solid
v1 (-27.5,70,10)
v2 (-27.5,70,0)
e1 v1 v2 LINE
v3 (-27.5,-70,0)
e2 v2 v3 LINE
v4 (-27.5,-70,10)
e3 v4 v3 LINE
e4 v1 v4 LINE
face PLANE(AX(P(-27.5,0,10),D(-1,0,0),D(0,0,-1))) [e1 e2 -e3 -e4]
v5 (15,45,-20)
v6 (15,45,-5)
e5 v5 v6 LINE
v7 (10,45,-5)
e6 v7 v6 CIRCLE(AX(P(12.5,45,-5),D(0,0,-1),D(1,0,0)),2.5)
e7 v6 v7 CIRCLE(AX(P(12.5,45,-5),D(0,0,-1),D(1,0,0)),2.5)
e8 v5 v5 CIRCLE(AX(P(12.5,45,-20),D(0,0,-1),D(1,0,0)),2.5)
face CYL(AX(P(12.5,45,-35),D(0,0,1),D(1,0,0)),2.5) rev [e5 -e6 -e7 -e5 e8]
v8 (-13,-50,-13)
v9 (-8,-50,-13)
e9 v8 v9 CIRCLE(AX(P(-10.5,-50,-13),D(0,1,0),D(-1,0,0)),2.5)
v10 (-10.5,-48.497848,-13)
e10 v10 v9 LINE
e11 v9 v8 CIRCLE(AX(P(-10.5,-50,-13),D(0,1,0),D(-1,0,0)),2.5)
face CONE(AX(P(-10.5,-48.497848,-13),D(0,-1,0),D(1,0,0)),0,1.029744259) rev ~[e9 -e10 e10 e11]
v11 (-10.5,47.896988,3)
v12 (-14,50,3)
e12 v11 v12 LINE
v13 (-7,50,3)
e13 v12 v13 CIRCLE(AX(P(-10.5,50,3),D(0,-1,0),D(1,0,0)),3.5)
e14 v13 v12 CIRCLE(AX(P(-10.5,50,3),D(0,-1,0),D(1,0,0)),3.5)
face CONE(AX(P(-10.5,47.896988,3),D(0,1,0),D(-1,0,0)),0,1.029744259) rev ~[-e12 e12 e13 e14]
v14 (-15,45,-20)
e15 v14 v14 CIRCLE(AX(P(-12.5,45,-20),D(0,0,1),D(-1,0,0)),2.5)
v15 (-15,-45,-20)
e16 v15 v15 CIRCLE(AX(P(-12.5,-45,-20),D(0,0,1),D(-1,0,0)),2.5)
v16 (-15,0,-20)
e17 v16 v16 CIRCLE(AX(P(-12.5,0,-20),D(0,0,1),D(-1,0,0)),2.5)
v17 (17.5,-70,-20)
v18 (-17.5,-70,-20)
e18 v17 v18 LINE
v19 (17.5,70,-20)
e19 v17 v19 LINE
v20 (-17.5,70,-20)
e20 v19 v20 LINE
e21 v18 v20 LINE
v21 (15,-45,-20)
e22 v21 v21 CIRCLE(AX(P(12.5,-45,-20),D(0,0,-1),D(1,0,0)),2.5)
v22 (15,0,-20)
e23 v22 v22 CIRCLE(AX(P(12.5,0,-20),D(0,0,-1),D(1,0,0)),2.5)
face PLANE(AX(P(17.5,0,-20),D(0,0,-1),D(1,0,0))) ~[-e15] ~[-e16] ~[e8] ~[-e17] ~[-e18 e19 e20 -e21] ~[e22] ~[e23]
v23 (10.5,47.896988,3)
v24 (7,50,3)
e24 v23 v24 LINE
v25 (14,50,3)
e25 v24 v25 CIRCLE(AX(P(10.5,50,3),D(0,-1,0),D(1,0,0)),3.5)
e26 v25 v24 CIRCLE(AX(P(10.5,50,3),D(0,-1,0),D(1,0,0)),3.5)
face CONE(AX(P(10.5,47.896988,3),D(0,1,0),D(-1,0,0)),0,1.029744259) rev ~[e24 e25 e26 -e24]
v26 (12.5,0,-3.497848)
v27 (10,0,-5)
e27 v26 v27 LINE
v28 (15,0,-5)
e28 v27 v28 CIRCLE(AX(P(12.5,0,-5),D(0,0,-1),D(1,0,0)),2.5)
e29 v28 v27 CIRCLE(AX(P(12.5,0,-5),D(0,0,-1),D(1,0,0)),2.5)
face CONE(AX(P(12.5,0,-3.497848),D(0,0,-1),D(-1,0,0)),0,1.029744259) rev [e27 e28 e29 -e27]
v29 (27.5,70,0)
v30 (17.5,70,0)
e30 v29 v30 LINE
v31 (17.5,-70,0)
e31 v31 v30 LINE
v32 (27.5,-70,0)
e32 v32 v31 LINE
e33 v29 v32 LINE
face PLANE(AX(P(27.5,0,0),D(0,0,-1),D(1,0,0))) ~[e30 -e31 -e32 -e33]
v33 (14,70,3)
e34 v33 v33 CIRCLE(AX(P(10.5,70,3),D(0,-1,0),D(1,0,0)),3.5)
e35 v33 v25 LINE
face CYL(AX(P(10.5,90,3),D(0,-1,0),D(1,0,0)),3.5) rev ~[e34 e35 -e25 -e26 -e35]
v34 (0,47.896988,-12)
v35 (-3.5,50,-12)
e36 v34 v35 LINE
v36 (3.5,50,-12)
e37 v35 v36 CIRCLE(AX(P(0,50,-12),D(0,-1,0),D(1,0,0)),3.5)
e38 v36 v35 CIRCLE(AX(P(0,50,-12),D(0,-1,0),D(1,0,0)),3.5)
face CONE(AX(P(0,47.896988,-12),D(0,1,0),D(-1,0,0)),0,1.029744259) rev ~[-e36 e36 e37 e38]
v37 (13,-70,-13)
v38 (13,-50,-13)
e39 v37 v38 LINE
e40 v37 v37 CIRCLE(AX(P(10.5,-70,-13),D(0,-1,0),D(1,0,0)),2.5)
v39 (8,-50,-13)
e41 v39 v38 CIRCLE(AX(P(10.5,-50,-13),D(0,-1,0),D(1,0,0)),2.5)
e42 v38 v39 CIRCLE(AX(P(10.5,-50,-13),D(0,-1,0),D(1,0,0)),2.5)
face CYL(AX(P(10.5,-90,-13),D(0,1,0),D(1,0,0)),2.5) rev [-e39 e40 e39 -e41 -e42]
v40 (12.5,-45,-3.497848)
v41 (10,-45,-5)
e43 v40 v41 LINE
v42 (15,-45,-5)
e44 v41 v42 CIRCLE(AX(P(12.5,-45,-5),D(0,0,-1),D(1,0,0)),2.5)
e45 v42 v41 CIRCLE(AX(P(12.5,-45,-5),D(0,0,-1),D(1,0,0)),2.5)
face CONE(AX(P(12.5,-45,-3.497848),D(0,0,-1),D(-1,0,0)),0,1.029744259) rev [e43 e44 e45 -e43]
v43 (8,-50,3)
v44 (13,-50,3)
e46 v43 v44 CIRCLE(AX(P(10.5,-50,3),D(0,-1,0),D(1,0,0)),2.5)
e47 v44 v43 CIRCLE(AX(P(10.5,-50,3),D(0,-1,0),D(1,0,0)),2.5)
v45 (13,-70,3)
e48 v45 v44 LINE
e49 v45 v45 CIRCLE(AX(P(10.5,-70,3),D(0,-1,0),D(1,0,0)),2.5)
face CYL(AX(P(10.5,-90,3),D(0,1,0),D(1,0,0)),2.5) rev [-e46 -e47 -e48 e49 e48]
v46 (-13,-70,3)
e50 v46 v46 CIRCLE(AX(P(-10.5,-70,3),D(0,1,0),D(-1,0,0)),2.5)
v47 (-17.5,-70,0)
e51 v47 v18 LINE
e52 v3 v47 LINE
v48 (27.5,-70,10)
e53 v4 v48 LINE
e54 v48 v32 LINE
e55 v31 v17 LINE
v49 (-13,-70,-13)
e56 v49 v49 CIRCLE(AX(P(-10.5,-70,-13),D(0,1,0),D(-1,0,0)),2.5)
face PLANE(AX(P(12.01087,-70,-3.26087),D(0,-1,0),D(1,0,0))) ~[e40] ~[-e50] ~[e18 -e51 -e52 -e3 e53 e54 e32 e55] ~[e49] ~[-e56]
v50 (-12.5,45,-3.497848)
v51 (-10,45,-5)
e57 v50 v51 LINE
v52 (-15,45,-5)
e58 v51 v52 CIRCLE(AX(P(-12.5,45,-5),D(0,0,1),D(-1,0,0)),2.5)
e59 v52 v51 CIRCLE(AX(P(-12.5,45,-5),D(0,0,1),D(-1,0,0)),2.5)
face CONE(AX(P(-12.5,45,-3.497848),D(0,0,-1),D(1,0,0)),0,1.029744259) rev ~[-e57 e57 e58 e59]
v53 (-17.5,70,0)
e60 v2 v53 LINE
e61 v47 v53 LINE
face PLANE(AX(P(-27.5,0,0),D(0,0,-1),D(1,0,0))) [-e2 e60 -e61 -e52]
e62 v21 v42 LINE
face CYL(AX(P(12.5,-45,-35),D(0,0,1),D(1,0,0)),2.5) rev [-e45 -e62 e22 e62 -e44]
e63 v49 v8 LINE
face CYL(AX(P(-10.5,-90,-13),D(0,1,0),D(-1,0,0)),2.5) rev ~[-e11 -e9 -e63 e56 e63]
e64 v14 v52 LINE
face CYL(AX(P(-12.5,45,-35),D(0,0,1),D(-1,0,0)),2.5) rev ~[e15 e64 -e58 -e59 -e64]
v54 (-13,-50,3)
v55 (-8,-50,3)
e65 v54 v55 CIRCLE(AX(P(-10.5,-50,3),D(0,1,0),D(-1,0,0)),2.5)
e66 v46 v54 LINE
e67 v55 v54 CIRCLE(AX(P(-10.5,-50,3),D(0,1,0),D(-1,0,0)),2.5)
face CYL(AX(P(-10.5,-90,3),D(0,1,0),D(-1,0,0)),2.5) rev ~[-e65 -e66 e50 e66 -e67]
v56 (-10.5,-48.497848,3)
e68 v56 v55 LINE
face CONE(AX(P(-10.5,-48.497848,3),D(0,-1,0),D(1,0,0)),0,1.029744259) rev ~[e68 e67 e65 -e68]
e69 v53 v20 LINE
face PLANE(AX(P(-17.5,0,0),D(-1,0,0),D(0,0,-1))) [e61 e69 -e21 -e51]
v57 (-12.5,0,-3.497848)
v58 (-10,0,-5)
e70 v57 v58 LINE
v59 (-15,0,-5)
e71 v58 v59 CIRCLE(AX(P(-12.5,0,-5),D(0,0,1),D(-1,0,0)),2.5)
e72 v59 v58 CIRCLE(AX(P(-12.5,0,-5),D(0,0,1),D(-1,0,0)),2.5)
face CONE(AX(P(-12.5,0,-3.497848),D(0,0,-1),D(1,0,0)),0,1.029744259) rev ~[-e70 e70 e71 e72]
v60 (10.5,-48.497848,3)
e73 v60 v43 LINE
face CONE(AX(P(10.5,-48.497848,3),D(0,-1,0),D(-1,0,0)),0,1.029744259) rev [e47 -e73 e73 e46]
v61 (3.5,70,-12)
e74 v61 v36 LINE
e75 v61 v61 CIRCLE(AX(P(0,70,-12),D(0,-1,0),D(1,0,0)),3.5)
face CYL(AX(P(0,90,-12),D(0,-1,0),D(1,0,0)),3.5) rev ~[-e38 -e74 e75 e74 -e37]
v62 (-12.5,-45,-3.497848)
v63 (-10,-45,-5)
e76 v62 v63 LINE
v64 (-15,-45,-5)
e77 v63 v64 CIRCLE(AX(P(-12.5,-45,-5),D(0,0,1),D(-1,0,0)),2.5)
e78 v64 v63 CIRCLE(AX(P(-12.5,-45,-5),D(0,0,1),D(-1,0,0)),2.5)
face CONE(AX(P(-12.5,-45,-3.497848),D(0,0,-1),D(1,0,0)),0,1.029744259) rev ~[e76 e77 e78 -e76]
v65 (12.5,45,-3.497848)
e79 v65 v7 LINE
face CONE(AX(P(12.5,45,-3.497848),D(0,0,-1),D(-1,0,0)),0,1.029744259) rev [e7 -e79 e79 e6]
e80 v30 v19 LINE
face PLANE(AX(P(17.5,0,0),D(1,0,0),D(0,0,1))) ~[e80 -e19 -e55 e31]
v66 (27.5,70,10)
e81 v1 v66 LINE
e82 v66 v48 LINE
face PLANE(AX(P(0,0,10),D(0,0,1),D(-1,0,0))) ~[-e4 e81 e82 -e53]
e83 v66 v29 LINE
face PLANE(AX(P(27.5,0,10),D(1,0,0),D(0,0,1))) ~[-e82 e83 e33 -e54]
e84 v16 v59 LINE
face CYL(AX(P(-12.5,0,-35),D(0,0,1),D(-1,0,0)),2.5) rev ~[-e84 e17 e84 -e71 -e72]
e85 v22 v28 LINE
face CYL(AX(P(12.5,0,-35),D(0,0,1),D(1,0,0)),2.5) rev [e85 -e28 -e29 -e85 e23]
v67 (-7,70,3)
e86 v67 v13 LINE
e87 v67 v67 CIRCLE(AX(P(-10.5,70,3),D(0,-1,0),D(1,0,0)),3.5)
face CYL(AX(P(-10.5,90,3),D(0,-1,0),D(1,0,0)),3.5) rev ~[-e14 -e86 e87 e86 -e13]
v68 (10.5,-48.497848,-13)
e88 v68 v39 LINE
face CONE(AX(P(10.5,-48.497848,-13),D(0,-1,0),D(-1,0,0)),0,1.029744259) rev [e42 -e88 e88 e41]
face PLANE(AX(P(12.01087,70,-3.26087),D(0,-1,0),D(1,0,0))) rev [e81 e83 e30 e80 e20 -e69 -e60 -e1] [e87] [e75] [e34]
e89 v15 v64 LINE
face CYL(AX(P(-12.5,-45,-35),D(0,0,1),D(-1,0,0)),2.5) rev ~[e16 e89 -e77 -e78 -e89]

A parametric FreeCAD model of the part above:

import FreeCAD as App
import Part
import Sketcher

V = App.Vector


def add_polygon(sketch, points):
    """Adds a closed chain of lines whose ends are joined by coincident constraints."""
    first, n = sketch.GeometryCount, len(points)
    for a, b in zip(points, points[1:] + points[:1]):
        sketch.addGeometry(Part.LineSegment(App.Vector(*a, 0), App.Vector(*b, 0)), False)
    for i in range(n):
        sketch.addConstraint(Sketcher.Constraint("Coincident", first + i, 2, first + (i + 1) % n, 1))

doc = App.newDocument("Part")
body = doc.addObject("PartDesign::Body", "Body")

# Sketch on XZ plane
sketch1 = doc.addObject("Sketcher::SketchObject", "Sketch")
body.addObject(sketch1)
sketch1.AttachmentSupport = (doc.XZ_Plane, [""])
sketch1.MapMode = "FlatFace"
add_polygon(sketch1, [(0, -20), (0, 10), (-28, 10), (-28, 0), (-18, 0), (-18, -20)])  # lines 0-5
sketch1.addConstraint([
    Sketcher.Constraint("Vertical", 0),
    Sketcher.Constraint("Horizontal", 1),
    Sketcher.Constraint("Vertical", 2),
    Sketcher.Constraint("Horizontal", 3),
    Sketcher.Constraint("Vertical", 4),
    Sketcher.Constraint("Horizontal", 5),
    Sketcher.Constraint("PointOnObject", 0, 2, -2),
    Sketcher.Constraint("PointOnObject", 2, 2, -1),
    Sketcher.Constraint("Equal", 3, 2),
    Sketcher.Constraint("DistanceX", 3, 1, 3, 2, 10.0),
    Sketcher.Constraint("DistanceY", 0, 1, 0, 2, 30.0),
    Sketcher.Constraint("DistanceX", 1, 2, 1, 1, 27.5),
])
pad1 = doc.addObject("PartDesign::Pad", "Pad")
body.addObject(pad1)
pad1.Profile = sketch1
pad1.Length = 140
pad1.Midplane = True

# Sketch on XZ plane
sketch2 = doc.addObject("Sketcher::SketchObject", "Sketch001")
body.addObject(sketch2)
sketch2.AttachmentSupport = (doc.XZ_Plane, [""])
sketch2.MapMode = "FlatFace"
sketch2.AttachmentOffset = App.Placement(V(0, 0, 70), App.Rotation())
sketch2.addGeometry([
    Part.Circle(V(-10.5, 3, 0), V(0, 0, 1), 2.5),
    Part.Circle(V(-10.5, -13, 0), V(0, 0, 1), 2.5),
], False)
sketch2.addConstraint([
    Sketcher.Constraint("Equal", 0, 1),
    Sketcher.Constraint("Vertical", 0, 3, 1, 3),
    Sketcher.Constraint("Diameter", 0, 5.0),
    Sketcher.Constraint("DistanceY", -1, 1, 0, 3, 3.0),
    Sketcher.Constraint("DistanceY", 1, 3, -1, 1, 13.0),
    Sketcher.Constraint("DistanceX", 0, 3, -1, 1, 10.5),
])
doc.recompute()
hole = doc.addObject("PartDesign::Hole", "Hole")
body.addObject(hole)
hole.Profile = sketch2
hole.ThreadType = "None"
hole.Diameter = 5
hole.DepthType = "Dimension"
hole.Depth = 20
hole.DrillPoint = "Angled"
hole.DrillPointAngle = 118

# Sketch on XY plane
sketch3 = doc.addObject("Sketcher::SketchObject", "Sketch002")
body.addObject(sketch3)
sketch3.AttachmentSupport = (doc.XY_Plane, [""])
sketch3.MapMode = "FlatFace"
sketch3.AttachmentOffset = App.Placement(V(0, 0, -20), App.Rotation())
sketch3.addGeometry([
    Part.Circle(V(-12.5, -45, 0), V(0, 0, 1), 2.5),
    Part.Circle(V(-12.5, 0, 0), V(0, 0, 1), 2.5),
    Part.Circle(V(-12.5, 45, 0), V(0, 0, 1), 2.5),
], False)
sketch3.addConstraint([
    Sketcher.Constraint("Equal", 0, 1),
    Sketcher.Constraint("Equal", 1, 2),
    Sketcher.Constraint("Symmetric", 0, 3, 2, 3, -1),
    Sketcher.Constraint("PointOnObject", 1, 3, -1),
    Sketcher.Constraint("Vertical", 0, 3, 1, 3),
    Sketcher.Constraint("Diameter", 0, 5.0),
    Sketcher.Constraint("DistanceY", 0, 3, -1, 1, 45.0),
    Sketcher.Constraint("DistanceX", 0, 3, -1, 1, 12.5),
])
doc.recompute()
hole2 = doc.addObject("PartDesign::Hole", "Hole001")
body.addObject(hole2)
hole2.Profile = sketch3
hole2.ThreadType = "None"
hole2.Diameter = 5
hole2.DepthType = "Dimension"
hole2.Depth = 15
hole2.DrillPoint = "Angled"
hole2.DrillPointAngle = 118
hole2.Reversed = True
body2 = doc.addObject("PartDesign::Body", "Body001")
doc.recompute()

body2.BaseFeature = body
doc.recompute()

mirroring = doc.addObject("Part::Mirroring", "Mirroring")
mirroring.Source = body
mirroring.Base = V(0, 0, 0)
mirroring.Normal = V(1, 0, 0)
body3 = doc.addObject("PartDesign::Body", "Body002")
body3.BaseFeature = mirroring
boolean = doc.addObject("PartDesign::Boolean", "Boolean")
body2.addObject(boolean)
boolean.Type = "Fuse"
boolean.addObjects([body3])
doc.recompute()

# Sketch on XZ plane
sketch4 = doc.addObject("Sketcher::SketchObject", "Sketch003")
body2.addObject(sketch4)
sketch4.AttachmentSupport = (doc.getObject("XZ_Plane001"), [""])
sketch4.MapMode = "FlatFace"
sketch4.AttachmentOffset = App.Placement(V(0, 0, -70), App.Rotation())
sketch4.addGeometry([
    Part.Circle(V(10.5, 3, 0), V(0, 0, 1), 3.5),
    Part.Circle(V(-10.5, 3, 0), V(0, 0, 1), 3.5),
    Part.Circle(V(0, -12, 0), V(0, 0, 1), 3.5),
], False)
sketch4.addConstraint([
    Sketcher.Constraint("Equal", 0, 1),
    Sketcher.Constraint("Equal", 1, 2),
    Sketcher.Constraint("Symmetric", 0, 3, 1, 3, -2),
    Sketcher.Constraint("PointOnObject", 2, 3, -2),
    Sketcher.Constraint("Diameter", 0, 7.0),
    Sketcher.Constraint("DistanceY", -1, 1, 0, 3, 3.0),
    Sketcher.Constraint("DistanceY", 2, 3, -1, 1, 12.0),
    Sketcher.Constraint("DistanceX", 1, 3, 0, 3, 21.0),
])
doc.recompute()
hole3 = doc.addObject("PartDesign::Hole", "Hole002")
body2.addObject(hole3)
hole3.Profile = sketch4
hole3.ThreadType = "None"
hole3.Diameter = 7
hole3.DepthType = "Dimension"
hole3.Depth = 20
hole3.DrillPoint = "Angled"
hole3.DrillPointAngle = 118
hole3.Reversed = True
mirroring.Visibility = False

doc.recompute()
